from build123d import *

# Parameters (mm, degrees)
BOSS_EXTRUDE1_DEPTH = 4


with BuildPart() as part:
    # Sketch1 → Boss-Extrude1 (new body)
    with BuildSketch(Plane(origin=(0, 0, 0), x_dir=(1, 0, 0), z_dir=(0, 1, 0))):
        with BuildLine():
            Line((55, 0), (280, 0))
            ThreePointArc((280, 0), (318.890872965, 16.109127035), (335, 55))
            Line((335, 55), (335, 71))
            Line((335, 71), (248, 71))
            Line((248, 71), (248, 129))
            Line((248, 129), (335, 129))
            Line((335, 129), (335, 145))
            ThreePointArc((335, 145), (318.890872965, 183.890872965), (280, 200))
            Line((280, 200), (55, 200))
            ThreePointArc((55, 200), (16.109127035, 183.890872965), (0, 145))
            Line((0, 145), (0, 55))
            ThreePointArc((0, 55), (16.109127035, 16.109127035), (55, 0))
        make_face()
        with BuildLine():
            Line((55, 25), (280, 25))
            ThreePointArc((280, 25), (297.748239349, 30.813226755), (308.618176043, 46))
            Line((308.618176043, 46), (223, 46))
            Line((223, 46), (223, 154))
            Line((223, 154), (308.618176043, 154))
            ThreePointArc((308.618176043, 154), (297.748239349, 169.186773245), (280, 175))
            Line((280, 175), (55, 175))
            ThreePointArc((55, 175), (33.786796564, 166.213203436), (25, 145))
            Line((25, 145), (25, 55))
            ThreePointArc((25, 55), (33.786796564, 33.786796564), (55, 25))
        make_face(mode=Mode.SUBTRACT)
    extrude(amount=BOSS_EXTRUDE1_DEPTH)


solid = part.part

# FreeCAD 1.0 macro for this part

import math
import FreeCAD as App
import Part
import Sketcher
from FreeCAD import Vector
Q = App.Units.Quantity

doc = App.newDocument("Part")
body = doc.addObject("PartDesign::Body", "Body")

# Sketch on XZ plane
sketch1 = doc.addObject("Sketcher::SketchObject", "Sketch")
body.addObject(sketch1)
sketch1.AttachmentSupport = (doc.XZ_Plane, [""])
sketch1.MapMode = "FlatFace"
sketch1.addGeometry(Part.LineSegment(Vector(55, 0, 0), Vector(280, 0, 0)), False)
sketch1.addGeometry(Part.ArcOfCircle(Part.Circle(Vector(280, -55, 0), Vector(0, 0, 1), 55), math.radians(0), math.radians(90)), False)
sketch1.addGeometry(Part.LineSegment(Vector(335, -55, 0), Vector(335, -71, 0)), False)
sketch1.addGeometry(Part.LineSegment(Vector(335, -71, 0), Vector(248, -71, 0)), False)
sketch1.addGeometry(Part.LineSegment(Vector(248, -71, 0), Vector(248, -129, 0)), False)
sketch1.addGeometry(Part.LineSegment(Vector(248, -129, 0), Vector(335, -129, 0)), False)
sketch1.addGeometry(Part.LineSegment(Vector(335, -129, 0), Vector(335, -145, 0)), False)
sketch1.addGeometry(Part.ArcOfCircle(Part.Circle(Vector(280, -145, 0), Vector(0, 0, 1), 55), math.radians(-90), math.radians(0)), False)
sketch1.addGeometry(Part.LineSegment(Vector(280, -200, 0), Vector(55, -200, 0)), False)
sketch1.addGeometry(Part.ArcOfCircle(Part.Circle(Vector(55, -145, 0), Vector(0, 0, 1), 55), math.radians(-180), math.radians(-90)), False)
sketch1.addGeometry(Part.LineSegment(Vector(0, -145, 0), Vector(0, -55, 0)), False)
sketch1.addGeometry(Part.ArcOfCircle(Part.Circle(Vector(55, -55, 0), Vector(0, 0, 1), 55), math.radians(90), math.radians(180)), False)
sketch1.addGeometry(Part.LineSegment(Vector(280, -25, 0), Vector(55, -25, 0)), False)
sketch1.addGeometry(Part.ArcOfCircle(Part.Circle(Vector(55, -55, 0), Vector(0, 0, 1), 30), math.radians(90), math.radians(180)), False)
sketch1.addGeometry(Part.LineSegment(Vector(25, -55, 0), Vector(25, -145, 0)), False)
sketch1.addGeometry(Part.ArcOfCircle(Part.Circle(Vector(55, -145, 0), Vector(0, 0, 1), 30), math.radians(180), math.radians(270)), False)
sketch1.addGeometry(Part.LineSegment(Vector(55, -175, 0), Vector(280, -175, 0)), False)
sketch1.addGeometry(Part.ArcOfCircle(Part.Circle(Vector(280, -145, 0), Vector(0, 0, 1), 30), math.radians(-90), math.radians(-17)), False)
sketch1.addGeometry(Part.LineSegment(Vector(309, -154, 0), Vector(223, -154, 0)), False)
sketch1.addGeometry(Part.LineSegment(Vector(223, -154, 0), Vector(223, -46, 0)), False)
sketch1.addGeometry(Part.LineSegment(Vector(223, -46, 0), Vector(309, -46, 0)), False)
sketch1.addGeometry(Part.ArcOfCircle(Part.Circle(Vector(280, -55, 0), Vector(0, 0, 1), 30), math.radians(17), math.radians(90)), False)
sketch1.addConstraint(Sketcher.Constraint("Tangent", 0, 2, 1, 2))
sketch1.addConstraint(Sketcher.Constraint("Tangent", 1, 1, 2, 1))
sketch1.addConstraint(Sketcher.Constraint("Coincident", 2, 2, 3, 1))
sketch1.addConstraint(Sketcher.Constraint("Coincident", 3, 2, 4, 1))
sketch1.addConstraint(Sketcher.Constraint("Coincident", 4, 2, 5, 1))
sketch1.addConstraint(Sketcher.Constraint("Coincident", 5, 2, 6, 1))
sketch1.addConstraint(Sketcher.Constraint("Tangent", 6, 2, 7, 2))
sketch1.addConstraint(Sketcher.Constraint("Tangent", 7, 1, 8, 1))
sketch1.addConstraint(Sketcher.Constraint("Tangent", 8, 2, 9, 2))
sketch1.addConstraint(Sketcher.Constraint("Tangent", 9, 1, 10, 1))
sketch1.addConstraint(Sketcher.Constraint("Tangent", 10, 2, 11, 2))
sketch1.addConstraint(Sketcher.Constraint("Tangent", 11, 1, 0, 1))
sketch1.addConstraint(Sketcher.Constraint("Tangent", 12, 2, 13, 1))
sketch1.addConstraint(Sketcher.Constraint("Tangent", 13, 2, 14, 1))
sketch1.addConstraint(Sketcher.Constraint("Tangent", 14, 2, 15, 1))
sketch1.addConstraint(Sketcher.Constraint("Tangent", 15, 2, 16, 1))
sketch1.addConstraint(Sketcher.Constraint("Tangent", 16, 2, 17, 1))
sketch1.addConstraint(Sketcher.Constraint("Coincident", 17, 2, 18, 1))
sketch1.addConstraint(Sketcher.Constraint("Coincident", 18, 2, 19, 1))
sketch1.addConstraint(Sketcher.Constraint("Coincident", 19, 2, 20, 1))
sketch1.addConstraint(Sketcher.Constraint("Coincident", 20, 2, 21, 1))
sketch1.addConstraint(Sketcher.Constraint("Tangent", 21, 2, 12, 1))
sketch1.addConstraint(Sketcher.Constraint("Horizontal", 0))
sketch1.addConstraint(Sketcher.Constraint("Vertical", 2))
sketch1.addConstraint(Sketcher.Constraint("Horizontal", 3))
sketch1.addConstraint(Sketcher.Constraint("Vertical", 4))
sketch1.addConstraint(Sketcher.Constraint("Horizontal", 5))
sketch1.addConstraint(Sketcher.Constraint("Vertical", 6))
sketch1.addConstraint(Sketcher.Constraint("Horizontal", 8))
sketch1.addConstraint(Sketcher.Constraint("Vertical", 10))
sketch1.addConstraint(Sketcher.Constraint("Horizontal", 12))
sketch1.addConstraint(Sketcher.Constraint("Vertical", 14))
sketch1.addConstraint(Sketcher.Constraint("Horizontal", 16))
sketch1.addConstraint(Sketcher.Constraint("Horizontal", 18))
sketch1.addConstraint(Sketcher.Constraint("Vertical", 19))
sketch1.addConstraint(Sketcher.Constraint("Horizontal", 20))
sketch1.addConstraint(Sketcher.Constraint("Coincident", 13, 3, 11, 3))
sketch1.addConstraint(Sketcher.Constraint("Coincident", 15, 3, 9, 3))
sketch1.addConstraint(Sketcher.Constraint("Coincident", 17, 3, 7, 3))
sketch1.addConstraint(Sketcher.Constraint("Coincident", 21, 3, 1, 3))
sketch1.addConstraint(Sketcher.Constraint("Equal", 1, 7))
sketch1.addConstraint(Sketcher.Constraint("Equal", 7, 9))
sketch1.addConstraint(Sketcher.Constraint("Equal", 9, 11))
sketch1.addConstraint(Sketcher.Constraint("PointOnObject", 0, 2, -1))
sketch1.addConstraint(Sketcher.Constraint("PointOnObject", 9, 1, -2))
sketch1.addConstraint(Sketcher.Constraint("Vertical", 1, 3, 7, 3))
sketch1.addConstraint(Sketcher.Constraint("Vertical", 17, 2, 20, 2))
sketch1.addConstraint(Sketcher.Constraint("Equal", 2, 6))
sketch1.addConstraint(Sketcher.Constraint("Radius", 1, Q("55 mm")))
sketch1.addConstraint(Sketcher.Constraint("Radius", 13, Q("30 mm")))
sketch1.addConstraint(Sketcher.Constraint("DistanceX", 0, 1, 0, 2, Q("225 mm")))
sketch1.addConstraint(Sketcher.Constraint("DistanceX", 3, 2, 3, 1, Q("87 mm")))
sketch1.addConstraint(Sketcher.Constraint("DistanceY", 2, 2, 2, 1, Q("16 mm")))
sketch1.addConstraint(Sketcher.Constraint("DistanceY", 4, 2, 4, 1, Q("58 mm")))
sketch1.addConstraint(Sketcher.Constraint("DistanceY", 19, 1, 19, 2, Q("108 mm")))
sketch1.addConstraint(Sketcher.Constraint("DistanceX", -1, 1, 18, 2, Q("223 mm")))
pad1 = doc.addObject("PartDesign::Pad", "Pad")
body.addObject(pad1)
pad1.Profile = sketch1
pad1.Length = 4
pad1.Reversed = True

doc.recompute()
